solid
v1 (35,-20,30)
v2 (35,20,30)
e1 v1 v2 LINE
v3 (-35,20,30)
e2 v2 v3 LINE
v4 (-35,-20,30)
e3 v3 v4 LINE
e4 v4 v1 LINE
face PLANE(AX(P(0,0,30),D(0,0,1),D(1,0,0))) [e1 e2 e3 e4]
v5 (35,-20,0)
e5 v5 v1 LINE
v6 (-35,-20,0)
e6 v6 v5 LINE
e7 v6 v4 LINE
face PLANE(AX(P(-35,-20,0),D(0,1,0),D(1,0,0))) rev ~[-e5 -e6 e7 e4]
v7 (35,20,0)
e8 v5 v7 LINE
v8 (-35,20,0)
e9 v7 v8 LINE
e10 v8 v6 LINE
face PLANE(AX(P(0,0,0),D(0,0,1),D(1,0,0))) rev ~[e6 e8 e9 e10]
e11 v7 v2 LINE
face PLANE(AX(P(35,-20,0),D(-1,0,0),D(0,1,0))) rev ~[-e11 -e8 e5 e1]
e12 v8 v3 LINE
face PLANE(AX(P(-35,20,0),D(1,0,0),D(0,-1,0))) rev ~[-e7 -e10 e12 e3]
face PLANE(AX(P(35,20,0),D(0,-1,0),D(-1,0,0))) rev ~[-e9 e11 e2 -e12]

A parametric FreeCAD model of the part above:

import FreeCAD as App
import Part
import Sketcher
from FreeCAD import Vector
Q = App.Units.Quantity


def add_polygon(sketch, points):
    """Adds a closed chain of lines whose ends are joined by coincident constraints."""
    first, n = sketch.GeometryCount, len(points)
    for a, b in zip(points, points[1:] + points[:1]):
        sketch.addGeometry(Part.LineSegment(App.Vector(*a, 0), App.Vector(*b, 0)), False)
    for i in range(n):
        sketch.addConstraint(Sketcher.Constraint("Coincident", first + i, 2, first + (i + 1) % n, 1))

doc = App.newDocument("Part")
body = doc.addObject("PartDesign::Body", "Body")

# Sketch on XY plane
sketch1 = body.newObject("Sketcher::SketchObject", "Sketch")
sketch1.AttachmentSupport = (doc.getObject("XY_Plane"), [""])
sketch1.MapMode = "FlatFace"
add_polygon(sketch1, [(35, -20), (35, 20), (-35, 20), (-35, -20)])  # lines 0-3
sketch1.addConstraint(Sketcher.Constraint("Vertical", 0))
sketch1.addConstraint(Sketcher.Constraint("Horizontal", 1))
sketch1.addConstraint(Sketcher.Constraint("Vertical", 2))
sketch1.addConstraint(Sketcher.Constraint("Horizontal", 3))
sketch1.addConstraint(Sketcher.Constraint("Symmetric", 0, 2, 2, 2, -1, 1))
sketch1.addConstraint(Sketcher.Constraint("DistanceX", 1, 2, 1, 1, Q("70 mm")))
sketch1.addConstraint(Sketcher.Constraint("DistanceY", 0, 1, 0, 2, Q("40 mm")))
pad1 = body.newObject("PartDesign::Pad", "Pad")
pad1.Profile = sketch1
pad1.Length = 30

doc.recompute()
